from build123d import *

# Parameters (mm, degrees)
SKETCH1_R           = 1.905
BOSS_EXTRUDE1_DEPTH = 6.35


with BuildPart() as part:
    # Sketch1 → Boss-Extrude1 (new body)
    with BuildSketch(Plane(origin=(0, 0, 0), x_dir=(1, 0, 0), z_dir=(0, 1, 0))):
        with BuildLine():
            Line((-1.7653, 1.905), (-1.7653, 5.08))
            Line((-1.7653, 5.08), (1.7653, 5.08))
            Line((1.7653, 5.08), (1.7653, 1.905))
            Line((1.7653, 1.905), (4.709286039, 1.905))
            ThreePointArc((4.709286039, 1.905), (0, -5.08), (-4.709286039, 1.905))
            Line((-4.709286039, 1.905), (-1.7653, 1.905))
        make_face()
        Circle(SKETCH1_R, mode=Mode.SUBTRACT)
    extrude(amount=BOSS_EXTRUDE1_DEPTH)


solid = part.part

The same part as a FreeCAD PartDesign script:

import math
import FreeCAD as App
import Part
import Sketcher
Q = App.Units.Quantity

doc = App.newDocument("Part")
body = doc.addObject("PartDesign::Body", "Body")

sketch1 = doc.addObject("Sketcher::SketchObject", "Sketch")
body.addObject(sketch1)
sketch1.AttachmentSupport = (doc.XZ_Plane, [""])
sketch1.MapMode = "FlatFace"
sketch1.addGeometry([
    Part.LineSegment(App.Vector(-1.8, -5.1, 0), App.Vector(-1.8, -1.9, 0)),
    Part.LineSegment(App.Vector(-1.8, -1.9, 0), App.Vector(-4.7, -1.9, 0)),
    Part.ArcOfCircle(Part.Circle(App.Vector(0, 0, 0), App.Vector(0, 0, 1), 5.1), math.radians(-22), math.radians(202)),
    Part.LineSegment(App.Vector(4.7, -1.9, 0), App.Vector(1.8, -1.9, 0)),
    Part.LineSegment(App.Vector(1.8, -1.9, 0), App.Vector(1.8, -5.1, 0)),
    Part.LineSegment(App.Vector(1.8, -5.1, 0), App.Vector(-1.8, -5.1, 0)),
    Part.Circle(App.Vector(0, 0, 0), App.Vector(0, 0, 1), 1.9),
], False)
sketch1.addConstraint([
    Sketcher.Constraint("Coincident", 0, 2, 1, 1),
    Sketcher.Constraint("Coincident", 1, 2, 2, 2),
    Sketcher.Constraint("Coincident", 2, 1, 3, 1),
    Sketcher.Constraint("Coincident", 3, 2, 4, 1),
    Sketcher.Constraint("Coincident", 4, 2, 5, 1),
    Sketcher.Constraint("Coincident", 5, 2, 0, 1),
    Sketcher.Constraint("Vertical", 0),
    Sketcher.Constraint("Horizontal", 1),
    Sketcher.Constraint("Horizontal", 3),
    Sketcher.Constraint("Vertical", 4),
    Sketcher.Constraint("Horizontal", 5),
    Sketcher.Constraint("Coincident", 2, 3, -1, 1),
    Sketcher.Constraint("Coincident", 6, 3, -1, 1),
    Sketcher.Constraint("Symmetric", 0, 2, 3, 2, -2),
    Sketcher.Constraint("Radius", 2, Q("0.2 in")),
    Sketcher.Constraint("Diameter", 6, Q("0.15 in")),
    Sketcher.Constraint("DistanceY", 4, 2, -1, 1, Q("0.2 in")),
    Sketcher.Constraint("DistanceX", 5, 2, 5, 1, Q("0.139 in")),
    Sketcher.Constraint("DistanceY", 0, 1, 0, 2, Q("0.125 in")),
])
pad1 = doc.addObject("PartDesign::Pad", "Pad")
body.addObject(pad1)
pad1.Profile = sketch1
pad1.Length = Q("0.25 in")
pad1.Reversed = True

doc.recompute()
